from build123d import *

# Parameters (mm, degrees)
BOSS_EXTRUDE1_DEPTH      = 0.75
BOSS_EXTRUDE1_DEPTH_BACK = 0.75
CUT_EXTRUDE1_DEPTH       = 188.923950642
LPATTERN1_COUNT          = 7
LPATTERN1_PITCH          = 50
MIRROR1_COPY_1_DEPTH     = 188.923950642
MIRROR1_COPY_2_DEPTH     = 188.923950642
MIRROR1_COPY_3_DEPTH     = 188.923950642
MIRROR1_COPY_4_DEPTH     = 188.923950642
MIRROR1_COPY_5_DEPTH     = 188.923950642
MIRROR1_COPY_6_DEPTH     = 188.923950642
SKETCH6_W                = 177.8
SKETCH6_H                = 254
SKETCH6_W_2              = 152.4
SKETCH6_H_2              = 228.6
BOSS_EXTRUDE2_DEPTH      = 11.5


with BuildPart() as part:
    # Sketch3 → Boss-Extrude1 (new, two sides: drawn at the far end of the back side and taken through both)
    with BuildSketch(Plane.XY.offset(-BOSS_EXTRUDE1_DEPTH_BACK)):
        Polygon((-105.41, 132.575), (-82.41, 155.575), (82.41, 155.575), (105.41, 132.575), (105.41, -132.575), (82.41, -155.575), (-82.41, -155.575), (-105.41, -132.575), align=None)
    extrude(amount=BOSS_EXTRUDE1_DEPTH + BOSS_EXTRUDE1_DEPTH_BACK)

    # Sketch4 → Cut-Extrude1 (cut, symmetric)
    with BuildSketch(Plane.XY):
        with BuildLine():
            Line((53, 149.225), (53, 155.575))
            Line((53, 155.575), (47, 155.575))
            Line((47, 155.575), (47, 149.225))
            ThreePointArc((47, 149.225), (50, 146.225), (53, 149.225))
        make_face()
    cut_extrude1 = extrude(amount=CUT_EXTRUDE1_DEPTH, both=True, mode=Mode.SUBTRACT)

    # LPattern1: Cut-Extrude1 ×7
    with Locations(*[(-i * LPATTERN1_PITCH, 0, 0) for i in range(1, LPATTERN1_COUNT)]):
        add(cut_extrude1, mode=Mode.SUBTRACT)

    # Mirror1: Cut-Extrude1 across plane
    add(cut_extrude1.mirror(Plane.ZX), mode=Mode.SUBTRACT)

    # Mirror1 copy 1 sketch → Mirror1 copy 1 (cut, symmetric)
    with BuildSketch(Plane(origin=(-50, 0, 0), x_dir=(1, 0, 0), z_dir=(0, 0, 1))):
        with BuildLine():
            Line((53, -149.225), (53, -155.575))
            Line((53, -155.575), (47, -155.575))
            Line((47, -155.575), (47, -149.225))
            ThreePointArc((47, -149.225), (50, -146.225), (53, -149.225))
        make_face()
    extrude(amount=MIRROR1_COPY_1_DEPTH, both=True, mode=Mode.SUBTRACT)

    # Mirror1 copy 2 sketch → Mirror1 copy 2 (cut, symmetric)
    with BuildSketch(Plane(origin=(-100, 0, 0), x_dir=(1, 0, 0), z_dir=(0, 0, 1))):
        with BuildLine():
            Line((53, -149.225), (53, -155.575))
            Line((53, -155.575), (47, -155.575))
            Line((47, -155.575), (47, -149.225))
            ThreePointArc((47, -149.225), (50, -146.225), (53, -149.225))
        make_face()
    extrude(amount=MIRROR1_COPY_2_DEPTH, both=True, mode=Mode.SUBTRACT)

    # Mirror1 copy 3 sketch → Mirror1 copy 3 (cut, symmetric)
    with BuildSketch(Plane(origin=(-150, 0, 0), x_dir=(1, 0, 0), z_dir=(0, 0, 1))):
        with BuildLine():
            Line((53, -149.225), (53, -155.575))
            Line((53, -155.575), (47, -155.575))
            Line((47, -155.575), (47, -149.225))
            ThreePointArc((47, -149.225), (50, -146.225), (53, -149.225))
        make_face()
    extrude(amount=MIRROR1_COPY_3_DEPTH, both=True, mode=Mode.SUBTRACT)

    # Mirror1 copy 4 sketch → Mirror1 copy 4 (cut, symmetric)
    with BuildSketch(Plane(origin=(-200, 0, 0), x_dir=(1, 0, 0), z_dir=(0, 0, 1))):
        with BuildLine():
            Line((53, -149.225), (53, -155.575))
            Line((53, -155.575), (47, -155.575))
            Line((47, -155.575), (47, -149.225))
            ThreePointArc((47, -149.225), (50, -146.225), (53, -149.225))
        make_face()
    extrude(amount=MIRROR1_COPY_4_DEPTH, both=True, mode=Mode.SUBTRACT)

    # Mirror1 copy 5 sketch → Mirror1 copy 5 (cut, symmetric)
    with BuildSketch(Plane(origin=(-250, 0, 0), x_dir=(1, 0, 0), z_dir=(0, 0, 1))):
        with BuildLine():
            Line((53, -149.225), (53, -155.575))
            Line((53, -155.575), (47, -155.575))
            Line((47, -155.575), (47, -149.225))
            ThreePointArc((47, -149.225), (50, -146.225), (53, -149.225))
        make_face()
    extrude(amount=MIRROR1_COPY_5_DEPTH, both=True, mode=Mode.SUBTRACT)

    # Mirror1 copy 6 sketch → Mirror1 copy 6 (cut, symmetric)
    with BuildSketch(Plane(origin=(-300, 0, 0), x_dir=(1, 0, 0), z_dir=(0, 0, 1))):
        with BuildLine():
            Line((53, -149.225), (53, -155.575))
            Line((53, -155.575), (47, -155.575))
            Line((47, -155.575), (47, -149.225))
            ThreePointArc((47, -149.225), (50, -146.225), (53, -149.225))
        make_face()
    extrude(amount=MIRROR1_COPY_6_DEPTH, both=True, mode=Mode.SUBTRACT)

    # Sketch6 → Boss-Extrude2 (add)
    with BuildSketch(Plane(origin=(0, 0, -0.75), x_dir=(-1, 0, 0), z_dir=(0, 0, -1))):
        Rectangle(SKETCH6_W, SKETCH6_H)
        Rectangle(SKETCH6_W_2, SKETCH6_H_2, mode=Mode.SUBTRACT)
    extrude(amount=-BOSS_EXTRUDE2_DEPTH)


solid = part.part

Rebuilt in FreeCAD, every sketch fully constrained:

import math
import FreeCAD as App
import Part
import Sketcher
from FreeCAD import Vector
Q = App.Units.Quantity


def add_polygon(sketch, points):
    """Adds a closed chain of lines whose ends are joined by coincident constraints."""
    first, n = sketch.GeometryCount, len(points)
    for a, b in zip(points, points[1:] + points[:1]):
        sketch.addGeometry(Part.LineSegment(App.Vector(*a, 0), App.Vector(*b, 0)), False)
    for i in range(n):
        sketch.addConstraint(Sketcher.Constraint("Coincident", first + i, 2, first + (i + 1) % n, 1))

doc = App.newDocument("Part")
body = doc.addObject("PartDesign::Body", "Body")

# Sketch on XY plane
sketch1 = body.newObject("Sketcher::SketchObject", "Sketch")
sketch1.AttachmentSupport = (doc.getObject("XY_Plane"), [""])
sketch1.MapMode = "FlatFace"
add_polygon(sketch1, [(-82, 156), (-105, 133), (-105, -133), (-82, -156), (82, -156), (105, -133), (105, 133), (82, 156)])  # lines 0-7
sketch1.addConstraint([
    Sketcher.Constraint("Vertical", 1),
    Sketcher.Constraint("Horizontal", 3),
    Sketcher.Constraint("Vertical", 5),
    Sketcher.Constraint("Horizontal", 7),
    Sketcher.Constraint("Symmetric", 0, 2, 4, 2, -1, 1),
    Sketcher.Constraint("Symmetric", 2, 2, 6, 2, -1, 1),
    Sketcher.Constraint("Perpendicular", 0, 2),
    Sketcher.Constraint("Perpendicular", 2, 4),
    Sketcher.Constraint("Perpendicular", 4, 6),
    Sketcher.Constraint("Horizontal", 1, 2, 4, 2),
    Sketcher.Constraint("Vertical", 3, 2, 6, 2),
    Sketcher.Constraint("DistanceX", 1, 2, 4, 2, Q("8.3 in")),
    Sketcher.Constraint("DistanceY", 3, 2, 6, 2, Q("12.25 in")),
    Sketcher.Constraint("DistanceX", 3, 1, 3, 2, Q("164.82 mm")),
])
pad1 = body.newObject("PartDesign::Pad", "Pad")
pad1.Profile = sketch1
pad1.Type = "TwoLengths"
pad1.Length = 0.75
pad1.Length2 = 0.75

# Sketch on XY plane
sketch2 = body.newObject("Sketcher::SketchObject", "Sketch001")
sketch2.AttachmentSupport = (doc.getObject("XY_Plane"), [""])
sketch2.MapMode = "FlatFace"
sketch2.addGeometry([
    Part.LineSegment(Vector(53, 149.2, 0), Vector(53, 155.6, 0)),
    Part.LineSegment(Vector(53, 155.6, 0), Vector(47, 155.6, 0)),
    Part.LineSegment(Vector(47, 155.6, 0), Vector(47, 149.2, 0)),
    Part.ArcOfCircle(Part.Circle(Vector(50, 149.2, 0), Vector(0, 0, 1), 3), math.radians(180), math.radians(360)),
], False)
sketch2.addConstraint([
    Sketcher.Constraint("Coincident", 0, 2, 1, 1),
    Sketcher.Constraint("Coincident", 1, 2, 2, 1),
    Sketcher.Constraint("Tangent", 2, 2, 3, 1),
    Sketcher.Constraint("Tangent", 3, 2, 0, 1),
    Sketcher.Constraint("Vertical", 0),
    Sketcher.Constraint("Horizontal", 1),
    Sketcher.Constraint("Vertical", 2),
    Sketcher.Constraint("DistanceY", 0, 1, 0, 2, Q("0.25 in")),
    Sketcher.Constraint("Radius", 3, Q("3 mm")),
    Sketcher.Constraint("DistanceY", -1, 1, 3, 3, Q("5.875 in")),
    Sketcher.Constraint("DistanceX", -1, 1, 3, 3, Q("50 mm")),
])
pocket1 = body.newObject("PartDesign::Pocket", "Pocket")
pocket1.Profile = sketch2
pocket1.Length = 377.847901
pocket1.Midplane = True
doc.recompute()

linearpattern = body.newObject("PartDesign::LinearPattern", "LinearPattern")
linearpattern.Originals = [pocket1]
linearpattern.Direction = (doc.getObject("X_Axis"), [""])
linearpattern.Mode = "offset"
linearpattern.Offset = 50
linearpattern.Occurrences = 7
linearpattern.Reversed = True
body.Tip = linearpattern
doc.recompute()

mirrored = body.newObject("PartDesign::Mirrored", "Mirrored")
mirrored.Originals = [pocket1]
mirrored.MirrorPlane = (doc.getObject("XZ_Plane"), [""])
body.Tip = mirrored

# Sketch on XY plane
sketch3 = body.newObject("Sketcher::SketchObject", "Sketch002")
sketch3.AttachmentSupport = (doc.getObject("XY_Plane"), [""])
sketch3.MapMode = "FlatFace"
sketch3.addGeometry([
    Part.LineSegment(Vector(3, -155.6, 0), Vector(3, -149.2, 0)),
    Part.ArcOfCircle(Part.Circle(Vector(0, -149.2, 0), Vector(0, 0, 1), 3), math.radians(0), math.radians(180)),
    Part.LineSegment(Vector(-3, -149.2, 0), Vector(-3, -155.6, 0)),
    Part.LineSegment(Vector(-3, -155.6, 0), Vector(3, -155.6, 0)),
], False)
sketch3.addConstraint([
    Sketcher.Constraint("Tangent", 0, 2, 1, 1),
    Sketcher.Constraint("Tangent", 1, 2, 2, 1),
    Sketcher.Constraint("Coincident", 2, 2, 3, 1),
    Sketcher.Constraint("Coincident", 3, 2, 0, 1),
    Sketcher.Constraint("Vertical", 0),
    Sketcher.Constraint("Vertical", 2),
    Sketcher.Constraint("Horizontal", 3),
    Sketcher.Constraint("PointOnObject", 1, 3, -2),
    Sketcher.Constraint("DistanceY", 0, 1, 0, 2, Q("0.25 in")),
    Sketcher.Constraint("Radius", 1, Q("3 mm")),
    Sketcher.Constraint("DistanceY", 1, 3, -1, 1, Q("5.875 in")),
])
pocket2 = body.newObject("PartDesign::Pocket", "Pocket001")
pocket2.Profile = sketch3
pocket2.Length = 377.847901
pocket2.Midplane = True

# Sketch on XY plane
sketch4 = body.newObject("Sketcher::SketchObject", "Sketch003")
sketch4.AttachmentSupport = (doc.getObject("XY_Plane"), [""])
sketch4.MapMode = "FlatFace"
sketch4.addGeometry([
    Part.LineSegment(Vector(-47, -155.6, 0), Vector(-47, -149.2, 0)),
    Part.ArcOfCircle(Part.Circle(Vector(-50, -149.2, 0), Vector(0, 0, 1), 3), math.radians(0), math.radians(180)),
    Part.LineSegment(Vector(-53, -149.2, 0), Vector(-53, -155.6, 0)),
    Part.LineSegment(Vector(-53, -155.6, 0), Vector(-47, -155.6, 0)),
], False)
sketch4.addConstraint([
    Sketcher.Constraint("Tangent", 0, 2, 1, 1),
    Sketcher.Constraint("Tangent", 1, 2, 2, 1),
    Sketcher.Constraint("Coincident", 2, 2, 3, 1),
    Sketcher.Constraint("Coincident", 3, 2, 0, 1),
    Sketcher.Constraint("Vertical", 0),
    Sketcher.Constraint("Vertical", 2),
    Sketcher.Constraint("Horizontal", 3),
    Sketcher.Constraint("DistanceY", 0, 1, 0, 2, Q("0.25 in")),
    Sketcher.Constraint("Radius", 1, Q("3 mm")),
    Sketcher.Constraint("DistanceY", 1, 3, -1, 1, Q("5.875 in")),
    Sketcher.Constraint("DistanceX", 1, 3, -1, 1, Q("50 mm")),
])
pocket3 = body.newObject("PartDesign::Pocket", "Pocket002")
pocket3.Profile = sketch4
pocket3.Length = 377.847901
pocket3.Midplane = True

# Sketch on XY plane
sketch5 = body.newObject("Sketcher::SketchObject", "Sketch004")
sketch5.AttachmentSupport = (doc.getObject("XY_Plane"), [""])
sketch5.MapMode = "FlatFace"
sketch5.addGeometry([
    Part.LineSegment(Vector(-97, -155.6, 0), Vector(-97, -149.2, 0)),
    Part.ArcOfCircle(Part.Circle(Vector(-100, -149.2, 0), Vector(0, 0, 1), 3), math.radians(0), math.radians(180)),
    Part.LineSegment(Vector(-103, -149.2, 0), Vector(-103, -155.6, 0)),
    Part.LineSegment(Vector(-103, -155.6, 0), Vector(-97, -155.6, 0)),
], False)
sketch5.addConstraint([
    Sketcher.Constraint("Tangent", 0, 2, 1, 1),
    Sketcher.Constraint("Tangent", 1, 2, 2, 1),
    Sketcher.Constraint("Coincident", 2, 2, 3, 1),
    Sketcher.Constraint("Coincident", 3, 2, 0, 1),
    Sketcher.Constraint("Vertical", 0),
    Sketcher.Constraint("Vertical", 2),
    Sketcher.Constraint("Horizontal", 3),
    Sketcher.Constraint("DistanceY", 0, 1, 0, 2, Q("0.25 in")),
    Sketcher.Constraint("Radius", 1, Q("3 mm")),
    Sketcher.Constraint("DistanceY", 1, 3, -1, 1, Q("5.875 in")),
    Sketcher.Constraint("DistanceX", 1, 3, -1, 1, Q("100 mm")),
])
pocket4 = body.newObject("PartDesign::Pocket", "Pocket003")
pocket4.Profile = sketch5
pocket4.Length = 377.847901
pocket4.Midplane = True

# Sketch on XY plane
sketch6 = body.newObject("Sketcher::SketchObject", "Sketch005")
sketch6.AttachmentSupport = (doc.getObject("XY_Plane"), [""])
sketch6.MapMode = "FlatFace"
sketch6.addGeometry([
    Part.LineSegment(Vector(-147, -155.6, 0), Vector(-147, -149.2, 0)),
    Part.ArcOfCircle(Part.Circle(Vector(-150, -149.2, 0), Vector(0, 0, 1), 3), math.radians(0), math.radians(180)),
    Part.LineSegment(Vector(-153, -149.2, 0), Vector(-153, -155.6, 0)),
    Part.LineSegment(Vector(-153, -155.6, 0), Vector(-147, -155.6, 0)),
], False)
sketch6.addConstraint([
    Sketcher.Constraint("Tangent", 0, 2, 1, 1),
    Sketcher.Constraint("Tangent", 1, 2, 2, 1),
    Sketcher.Constraint("Coincident", 2, 2, 3, 1),
    Sketcher.Constraint("Coincident", 3, 2, 0, 1),
    Sketcher.Constraint("Vertical", 0),
    Sketcher.Constraint("Vertical", 2),
    Sketcher.Constraint("Horizontal", 3),
    Sketcher.Constraint("DistanceY", 0, 1, 0, 2, Q("0.25 in")),
    Sketcher.Constraint("Radius", 1, Q("3 mm")),
    Sketcher.Constraint("DistanceY", 1, 3, -1, 1, Q("5.875 in")),
    Sketcher.Constraint("DistanceX", 1, 3, -1, 1, Q("150 mm")),
])
pocket5 = body.newObject("PartDesign::Pocket", "Pocket004")
pocket5.Profile = sketch6
pocket5.Length = 377.847901
pocket5.Midplane = True

# Sketch on XY plane
sketch7 = body.newObject("Sketcher::SketchObject", "Sketch006")
sketch7.AttachmentSupport = (doc.getObject("XY_Plane"), [""])
sketch7.MapMode = "FlatFace"
sketch7.addGeometry([
    Part.LineSegment(Vector(-197, -155.6, 0), Vector(-197, -149.2, 0)),
    Part.ArcOfCircle(Part.Circle(Vector(-200, -149.2, 0), Vector(0, 0, 1), 3), math.radians(0), math.radians(180)),
    Part.LineSegment(Vector(-203, -149.2, 0), Vector(-203, -155.6, 0)),
    Part.LineSegment(Vector(-203, -155.6, 0), Vector(-197, -155.6, 0)),
], False)
sketch7.addConstraint([
    Sketcher.Constraint("Tangent", 0, 2, 1, 1),
    Sketcher.Constraint("Tangent", 1, 2, 2, 1),
    Sketcher.Constraint("Coincident", 2, 2, 3, 1),
    Sketcher.Constraint("Coincident", 3, 2, 0, 1),
    Sketcher.Constraint("Vertical", 0),
    Sketcher.Constraint("Vertical", 2),
    Sketcher.Constraint("Horizontal", 3),
    Sketcher.Constraint("DistanceY", 0, 1, 0, 2, Q("0.25 in")),
    Sketcher.Constraint("Radius", 1, Q("3 mm")),
    Sketcher.Constraint("DistanceY", 1, 3, -1, 1, Q("5.875 in")),
    Sketcher.Constraint("DistanceX", 1, 3, -1, 1, Q("200 mm")),
])
pocket6 = body.newObject("PartDesign::Pocket", "Pocket005")
pocket6.Profile = sketch7
pocket6.Length = 377.847901
pocket6.Midplane = True

# Sketch on XY plane
sketch8 = body.newObject("Sketcher::SketchObject", "Sketch007")
sketch8.AttachmentSupport = (doc.getObject("XY_Plane"), [""])
sketch8.MapMode = "FlatFace"
sketch8.addGeometry([
    Part.LineSegment(Vector(-247, -155.6, 0), Vector(-247, -149.2, 0)),
    Part.ArcOfCircle(Part.Circle(Vector(-250, -149.2, 0), Vector(0, 0, 1), 3), math.radians(0), math.radians(180)),
    Part.LineSegment(Vector(-253, -149.2, 0), Vector(-253, -155.6, 0)),
    Part.LineSegment(Vector(-253, -155.6, 0), Vector(-247, -155.6, 0)),
], False)
sketch8.addConstraint([
    Sketcher.Constraint("Tangent", 0, 2, 1, 1),
    Sketcher.Constraint("Tangent", 1, 2, 2, 1),
    Sketcher.Constraint("Coincident", 2, 2, 3, 1),
    Sketcher.Constraint("Coincident", 3, 2, 0, 1),
    Sketcher.Constraint("Vertical", 0),
    Sketcher.Constraint("Vertical", 2),
    Sketcher.Constraint("Horizontal", 3),
    Sketcher.Constraint("DistanceY", 0, 1, 0, 2, Q("0.25 in")),
    Sketcher.Constraint("Radius", 1, Q("3 mm")),
    Sketcher.Constraint("DistanceY", 1, 3, -1, 1, Q("5.875 in")),
    Sketcher.Constraint("DistanceX", 1, 3, -1, 1, Q("250 mm")),
])
pocket7 = body.newObject("PartDesign::Pocket", "Pocket006")
pocket7.Profile = sketch8
pocket7.Length = 377.847901
pocket7.Midplane = True

# Sketch on XY plane
sketch9 = body.newObject("Sketcher::SketchObject", "Sketch008")
sketch9.AttachmentSupport = (doc.getObject("XY_Plane"), [""])
sketch9.MapMode = "FlatFace"
sketch9.AttachmentOffset = App.Placement(Vector(0, 0, -0.75), App.Rotation())
add_polygon(sketch9, [(89, 127), (89, -127), (-89, -127), (-89, 127)])  # lines 0-3
add_polygon(sketch9, [(-76, -114), (76, -114), (76, 114), (-76, 114)])  # lines 4-7
sketch9.addConstraint([
    Sketcher.Constraint("Vertical", 0),
    Sketcher.Constraint("Horizontal", 1),
    Sketcher.Constraint("Vertical", 2),
    Sketcher.Constraint("Horizontal", 3),
    Sketcher.Constraint("Horizontal", 4),
    Sketcher.Constraint("Vertical", 5),
    Sketcher.Constraint("Horizontal", 6),
    Sketcher.Constraint("Vertical", 7),
    Sketcher.Constraint("Symmetric", 0, 2, 2, 2, -1, 1),
    Sketcher.Constraint("Symmetric", 4, 2, 6, 2, -1, 1),
    Sketcher.Constraint("DistanceX", 1, 2, 1, 1, Q("7 in")),
    Sketcher.Constraint("DistanceX", 4, 1, 4, 2, Q("6 in")),
    Sketcher.Constraint("DistanceY", 0, 2, 0, 1, Q("10 in")),
    Sketcher.Constraint("DistanceY", 5, 1, 5, 2, Q("9 in")),
])
pad2 = body.newObject("PartDesign::Pad", "Pad001")
pad2.Profile = sketch9
pad2.Length = 11.5

doc.recompute()
